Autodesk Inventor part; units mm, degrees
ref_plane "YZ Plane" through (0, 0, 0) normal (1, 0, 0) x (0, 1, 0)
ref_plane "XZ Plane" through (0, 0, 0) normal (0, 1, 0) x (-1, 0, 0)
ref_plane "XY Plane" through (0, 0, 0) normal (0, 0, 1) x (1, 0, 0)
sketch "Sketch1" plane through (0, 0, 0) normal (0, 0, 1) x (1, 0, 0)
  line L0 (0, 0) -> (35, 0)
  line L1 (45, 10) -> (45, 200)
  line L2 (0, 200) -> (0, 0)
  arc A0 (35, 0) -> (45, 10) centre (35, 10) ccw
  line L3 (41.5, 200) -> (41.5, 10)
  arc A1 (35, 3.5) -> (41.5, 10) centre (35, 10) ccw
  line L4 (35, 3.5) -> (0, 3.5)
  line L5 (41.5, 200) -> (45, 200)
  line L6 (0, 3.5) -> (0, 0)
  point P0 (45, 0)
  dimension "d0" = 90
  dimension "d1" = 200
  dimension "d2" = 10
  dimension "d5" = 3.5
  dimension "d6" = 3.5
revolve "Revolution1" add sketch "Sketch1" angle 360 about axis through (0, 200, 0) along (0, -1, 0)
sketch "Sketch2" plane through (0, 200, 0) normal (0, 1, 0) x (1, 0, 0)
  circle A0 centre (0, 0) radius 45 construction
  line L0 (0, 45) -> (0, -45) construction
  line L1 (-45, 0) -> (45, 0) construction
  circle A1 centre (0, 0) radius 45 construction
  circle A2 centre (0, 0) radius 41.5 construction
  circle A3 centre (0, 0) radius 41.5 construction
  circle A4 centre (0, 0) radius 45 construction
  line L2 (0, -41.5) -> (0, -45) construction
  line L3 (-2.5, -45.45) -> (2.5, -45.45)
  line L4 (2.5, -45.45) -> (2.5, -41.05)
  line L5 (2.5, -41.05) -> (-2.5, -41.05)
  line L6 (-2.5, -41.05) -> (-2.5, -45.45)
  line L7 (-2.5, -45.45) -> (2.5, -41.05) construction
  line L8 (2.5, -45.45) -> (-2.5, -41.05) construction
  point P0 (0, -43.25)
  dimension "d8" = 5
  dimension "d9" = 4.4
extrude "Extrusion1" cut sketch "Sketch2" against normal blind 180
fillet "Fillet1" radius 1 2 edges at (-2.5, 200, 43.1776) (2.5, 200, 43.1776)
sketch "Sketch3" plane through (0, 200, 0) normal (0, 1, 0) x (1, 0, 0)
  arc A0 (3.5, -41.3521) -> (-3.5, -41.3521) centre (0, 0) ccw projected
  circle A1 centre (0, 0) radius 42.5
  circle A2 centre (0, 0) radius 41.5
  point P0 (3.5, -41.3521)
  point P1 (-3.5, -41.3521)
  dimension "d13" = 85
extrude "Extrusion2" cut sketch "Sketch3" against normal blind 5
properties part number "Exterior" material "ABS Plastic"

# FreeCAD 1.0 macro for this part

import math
import FreeCAD as App
import Part
import Sketcher
Q = App.Units.Quantity


def edges_at(feature, points):
    """Names of the edges that pass closest to the given points."""
    edges = feature.Shape.Edges
    near = lambda p: min(range(len(edges)), key=lambda i: edges[i].distToShape(Part.Vertex(*p))[0])
    return sorted({f"Edge{near(p) + 1}" for p in points})


def add_polygon(sketch, points):
    """Adds a closed chain of lines whose ends are joined by coincident constraints."""
    first, n = sketch.GeometryCount, len(points)
    for a, b in zip(points, points[1:] + points[:1]):
        sketch.addGeometry(Part.LineSegment(App.Vector(*a, 0), App.Vector(*b, 0)), False)
    for i in range(n):
        sketch.addConstraint(Sketcher.Constraint("Coincident", first + i, 2, first + (i + 1) % n, 1))

doc = App.newDocument("Part")
params = doc.addObject("Spreadsheet::Sheet", "Params")
for row, (alias, value) in enumerate([
    ("sketch1_radius", "10 mm"),
    ("sketch1_width", "3.5 mm"),
    ("sketch1_width2", "35 mm"),
    ("revolution_angle", "360 deg"),
    ("sketch2_width", "5 mm"),
    ("sketch2_height", "4.4 mm"),
    ("pocket1_length", "180 mm"),
    ("fillet_radius", "1 mm"),
    ("sketch3_diameter", "85 mm"),
    ("sketch3_diameter2", "83 mm"),
    ("pocket2_length", "5 mm"),
], start=1):
    params.set(f"A{row}", alias)
    params.set(f"B{row}", "=" + value)
    params.setAlias(f"B{row}", alias)

body = doc.addObject("PartDesign::Body", "Body")

# Sketch on XY plane
sketch1 = body.newObject("Sketcher::SketchObject", "Sketch")
sketch1.AttachmentSupport = (doc.getObject("XY_Plane"), [""])
sketch1.MapMode = "FlatFace"
sketch1.addGeometry(Part.LineSegment(App.Vector(0, 3.5, 0), App.Vector(0, 0, 0)), False)
sketch1.addGeometry(Part.LineSegment(App.Vector(0, 0, 0), App.Vector(35, 0, 0)), False)
sketch1.addGeometry(Part.ArcOfCircle(Part.Circle(App.Vector(35, 10, 0), App.Vector(0, 0, 1), 10), math.radians(-90), math.radians(0)), False)
sketch1.addGeometry(Part.LineSegment(App.Vector(45, 10, 0), App.Vector(45, 200, 0)), False)
sketch1.addGeometry(Part.LineSegment(App.Vector(45, 200, 0), App.Vector(41.5, 200, 0)), False)
sketch1.addGeometry(Part.LineSegment(App.Vector(41.5, 200, 0), App.Vector(41.5, 10, 0)), False)
sketch1.addGeometry(Part.ArcOfCircle(Part.Circle(App.Vector(35, 10, 0), App.Vector(0, 0, 1), 6.5), math.radians(-90), math.radians(0)), False)
sketch1.addGeometry(Part.LineSegment(App.Vector(35, 3.5, 0), App.Vector(0, 3.5, 0)), False)
sketch1.addConstraint(Sketcher.Constraint("Coincident", 0, 2, 1, 1))
sketch1.addConstraint(Sketcher.Constraint("Tangent", 1, 2, 2, 1))
sketch1.addConstraint(Sketcher.Constraint("Tangent", 2, 2, 3, 1))
sketch1.addConstraint(Sketcher.Constraint("Coincident", 3, 2, 4, 1))
sketch1.addConstraint(Sketcher.Constraint("Coincident", 4, 2, 5, 1))
sketch1.addConstraint(Sketcher.Constraint("Tangent", 5, 2, 6, 2))
sketch1.addConstraint(Sketcher.Constraint("Tangent", 6, 1, 7, 1))
sketch1.addConstraint(Sketcher.Constraint("Coincident", 7, 2, 0, 1))
sketch1.addConstraint(Sketcher.Constraint("Vertical", 0))
sketch1.addConstraint(Sketcher.Constraint("Horizontal", 1))
sketch1.addConstraint(Sketcher.Constraint("Vertical", 3))
sketch1.addConstraint(Sketcher.Constraint("Horizontal", 4))
sketch1.addConstraint(Sketcher.Constraint("Vertical", 5))
sketch1.addConstraint(Sketcher.Constraint("Horizontal", 7))
sketch1.addConstraint(Sketcher.Constraint("Coincident", 0, 2, -1, 1))
sketch1.addConstraint(Sketcher.Constraint("Coincident", 6, 3, 2, 3))
sketch1.addConstraint(Sketcher.Constraint("Radius", 2, Q("10 mm")))
sketch1.addConstraint(Sketcher.Constraint("DistanceX", 4, 2, 4, 1, Q("3.5 mm")))
sketch1.addConstraint(Sketcher.Constraint("DistanceY", -1, 1, 3, 2, Q("200 mm")))
sketch1.addConstraint(Sketcher.Constraint("DistanceX", 1, 1, 1, 2, Q("35 mm")))
sketch1.setExpression("Constraints[16]", "Params.sketch1_radius")
sketch1.setExpression("Constraints[17]", "Params.sketch1_width")
sketch1.setExpression("Constraints[19]", "Params.sketch1_width2")
revolution = body.newObject("PartDesign::Revolution", "Revolution")
revolution.Profile = sketch1
revolution.ReferenceAxis = (sketch1, ["V_Axis"])
revolution.setExpression("Angle", "Params.revolution_angle")

# Sketch on XZ plane
sketch2 = body.newObject("Sketcher::SketchObject", "Sketch001")
sketch2.AttachmentSupport = (doc.getObject("XZ_Plane"), [""])
sketch2.MapMode = "FlatFace"
sketch2.AttachmentOffset = App.Placement(App.Vector(0, 0, -200), App.Rotation())
add_polygon(sketch2, [(-2.5, 41), (-2.5, 45.5), (2.5, 45.5), (2.5, 41)])  # lines 0-3
sketch2.addConstraint(Sketcher.Constraint("Vertical", 0))
sketch2.addConstraint(Sketcher.Constraint("Horizontal", 1))
sketch2.addConstraint(Sketcher.Constraint("Vertical", 2))
sketch2.addConstraint(Sketcher.Constraint("Horizontal", 3))
sketch2.addConstraint(Sketcher.Constraint("DistanceX", 1, 1, 1, 2, Q("5 mm")))
sketch2.addConstraint(Sketcher.Constraint("DistanceY", 0, 1, 0, 2, Q("4.4 mm")))
sketch2.addConstraint(Sketcher.Constraint("DistanceX", 0, 2, -1, 1, Q("2.5 mm")))
sketch2.addConstraint(Sketcher.Constraint("DistanceY", -1, 1, 0, 2, Q("45.45 mm")))
sketch2.setExpression("Constraints[8]", "Params.sketch2_width")
sketch2.setExpression("Constraints[9]", "Params.sketch2_height")
pocket1 = body.newObject("PartDesign::Pocket", "Pocket")
pocket1.Profile = sketch2
pocket1.setExpression("Length", "Params.pocket1_length")
pocket1.Reversed = True
doc.recompute()

fillet = body.newObject("PartDesign::Fillet", "Fillet")
fillet.Base = (pocket1, edges_at(pocket1, [(-2.5, 200, 43.178), (2.5, 200, 43.178)]))
fillet.setExpression("Radius", "Params.fillet_radius")

# Sketch on XZ plane
sketch3 = body.newObject("Sketcher::SketchObject", "Sketch002")
sketch3.AttachmentSupport = (doc.getObject("XZ_Plane"), [""])
sketch3.MapMode = "FlatFace"
sketch3.AttachmentOffset = App.Placement(App.Vector(0, 0, -200), App.Rotation())
sketch3.addGeometry(Part.Circle(App.Vector(0, 0, 0), App.Vector(0, 0, 1), 42), False)
sketch3.addGeometry(Part.Circle(App.Vector(0, 0, 0), App.Vector(0, 0, 1), 42), False)
sketch3.addConstraint(Sketcher.Constraint("Coincident", 0, 3, -1, 1))
sketch3.addConstraint(Sketcher.Constraint("Coincident", 1, 3, -1, 1))
sketch3.addConstraint(Sketcher.Constraint("Diameter", 0, Q("85 mm")))
sketch3.addConstraint(Sketcher.Constraint("Diameter", 1, Q("83 mm")))
sketch3.setExpression("Constraints[2]", "Params.sketch3_diameter")
sketch3.setExpression("Constraints[3]", "Params.sketch3_diameter2")
pocket2 = body.newObject("PartDesign::Pocket", "Pocket001")
pocket2.Profile = sketch3
pocket2.setExpression("Length", "Params.pocket2_length")
pocket2.Reversed = True

doc.recompute()
